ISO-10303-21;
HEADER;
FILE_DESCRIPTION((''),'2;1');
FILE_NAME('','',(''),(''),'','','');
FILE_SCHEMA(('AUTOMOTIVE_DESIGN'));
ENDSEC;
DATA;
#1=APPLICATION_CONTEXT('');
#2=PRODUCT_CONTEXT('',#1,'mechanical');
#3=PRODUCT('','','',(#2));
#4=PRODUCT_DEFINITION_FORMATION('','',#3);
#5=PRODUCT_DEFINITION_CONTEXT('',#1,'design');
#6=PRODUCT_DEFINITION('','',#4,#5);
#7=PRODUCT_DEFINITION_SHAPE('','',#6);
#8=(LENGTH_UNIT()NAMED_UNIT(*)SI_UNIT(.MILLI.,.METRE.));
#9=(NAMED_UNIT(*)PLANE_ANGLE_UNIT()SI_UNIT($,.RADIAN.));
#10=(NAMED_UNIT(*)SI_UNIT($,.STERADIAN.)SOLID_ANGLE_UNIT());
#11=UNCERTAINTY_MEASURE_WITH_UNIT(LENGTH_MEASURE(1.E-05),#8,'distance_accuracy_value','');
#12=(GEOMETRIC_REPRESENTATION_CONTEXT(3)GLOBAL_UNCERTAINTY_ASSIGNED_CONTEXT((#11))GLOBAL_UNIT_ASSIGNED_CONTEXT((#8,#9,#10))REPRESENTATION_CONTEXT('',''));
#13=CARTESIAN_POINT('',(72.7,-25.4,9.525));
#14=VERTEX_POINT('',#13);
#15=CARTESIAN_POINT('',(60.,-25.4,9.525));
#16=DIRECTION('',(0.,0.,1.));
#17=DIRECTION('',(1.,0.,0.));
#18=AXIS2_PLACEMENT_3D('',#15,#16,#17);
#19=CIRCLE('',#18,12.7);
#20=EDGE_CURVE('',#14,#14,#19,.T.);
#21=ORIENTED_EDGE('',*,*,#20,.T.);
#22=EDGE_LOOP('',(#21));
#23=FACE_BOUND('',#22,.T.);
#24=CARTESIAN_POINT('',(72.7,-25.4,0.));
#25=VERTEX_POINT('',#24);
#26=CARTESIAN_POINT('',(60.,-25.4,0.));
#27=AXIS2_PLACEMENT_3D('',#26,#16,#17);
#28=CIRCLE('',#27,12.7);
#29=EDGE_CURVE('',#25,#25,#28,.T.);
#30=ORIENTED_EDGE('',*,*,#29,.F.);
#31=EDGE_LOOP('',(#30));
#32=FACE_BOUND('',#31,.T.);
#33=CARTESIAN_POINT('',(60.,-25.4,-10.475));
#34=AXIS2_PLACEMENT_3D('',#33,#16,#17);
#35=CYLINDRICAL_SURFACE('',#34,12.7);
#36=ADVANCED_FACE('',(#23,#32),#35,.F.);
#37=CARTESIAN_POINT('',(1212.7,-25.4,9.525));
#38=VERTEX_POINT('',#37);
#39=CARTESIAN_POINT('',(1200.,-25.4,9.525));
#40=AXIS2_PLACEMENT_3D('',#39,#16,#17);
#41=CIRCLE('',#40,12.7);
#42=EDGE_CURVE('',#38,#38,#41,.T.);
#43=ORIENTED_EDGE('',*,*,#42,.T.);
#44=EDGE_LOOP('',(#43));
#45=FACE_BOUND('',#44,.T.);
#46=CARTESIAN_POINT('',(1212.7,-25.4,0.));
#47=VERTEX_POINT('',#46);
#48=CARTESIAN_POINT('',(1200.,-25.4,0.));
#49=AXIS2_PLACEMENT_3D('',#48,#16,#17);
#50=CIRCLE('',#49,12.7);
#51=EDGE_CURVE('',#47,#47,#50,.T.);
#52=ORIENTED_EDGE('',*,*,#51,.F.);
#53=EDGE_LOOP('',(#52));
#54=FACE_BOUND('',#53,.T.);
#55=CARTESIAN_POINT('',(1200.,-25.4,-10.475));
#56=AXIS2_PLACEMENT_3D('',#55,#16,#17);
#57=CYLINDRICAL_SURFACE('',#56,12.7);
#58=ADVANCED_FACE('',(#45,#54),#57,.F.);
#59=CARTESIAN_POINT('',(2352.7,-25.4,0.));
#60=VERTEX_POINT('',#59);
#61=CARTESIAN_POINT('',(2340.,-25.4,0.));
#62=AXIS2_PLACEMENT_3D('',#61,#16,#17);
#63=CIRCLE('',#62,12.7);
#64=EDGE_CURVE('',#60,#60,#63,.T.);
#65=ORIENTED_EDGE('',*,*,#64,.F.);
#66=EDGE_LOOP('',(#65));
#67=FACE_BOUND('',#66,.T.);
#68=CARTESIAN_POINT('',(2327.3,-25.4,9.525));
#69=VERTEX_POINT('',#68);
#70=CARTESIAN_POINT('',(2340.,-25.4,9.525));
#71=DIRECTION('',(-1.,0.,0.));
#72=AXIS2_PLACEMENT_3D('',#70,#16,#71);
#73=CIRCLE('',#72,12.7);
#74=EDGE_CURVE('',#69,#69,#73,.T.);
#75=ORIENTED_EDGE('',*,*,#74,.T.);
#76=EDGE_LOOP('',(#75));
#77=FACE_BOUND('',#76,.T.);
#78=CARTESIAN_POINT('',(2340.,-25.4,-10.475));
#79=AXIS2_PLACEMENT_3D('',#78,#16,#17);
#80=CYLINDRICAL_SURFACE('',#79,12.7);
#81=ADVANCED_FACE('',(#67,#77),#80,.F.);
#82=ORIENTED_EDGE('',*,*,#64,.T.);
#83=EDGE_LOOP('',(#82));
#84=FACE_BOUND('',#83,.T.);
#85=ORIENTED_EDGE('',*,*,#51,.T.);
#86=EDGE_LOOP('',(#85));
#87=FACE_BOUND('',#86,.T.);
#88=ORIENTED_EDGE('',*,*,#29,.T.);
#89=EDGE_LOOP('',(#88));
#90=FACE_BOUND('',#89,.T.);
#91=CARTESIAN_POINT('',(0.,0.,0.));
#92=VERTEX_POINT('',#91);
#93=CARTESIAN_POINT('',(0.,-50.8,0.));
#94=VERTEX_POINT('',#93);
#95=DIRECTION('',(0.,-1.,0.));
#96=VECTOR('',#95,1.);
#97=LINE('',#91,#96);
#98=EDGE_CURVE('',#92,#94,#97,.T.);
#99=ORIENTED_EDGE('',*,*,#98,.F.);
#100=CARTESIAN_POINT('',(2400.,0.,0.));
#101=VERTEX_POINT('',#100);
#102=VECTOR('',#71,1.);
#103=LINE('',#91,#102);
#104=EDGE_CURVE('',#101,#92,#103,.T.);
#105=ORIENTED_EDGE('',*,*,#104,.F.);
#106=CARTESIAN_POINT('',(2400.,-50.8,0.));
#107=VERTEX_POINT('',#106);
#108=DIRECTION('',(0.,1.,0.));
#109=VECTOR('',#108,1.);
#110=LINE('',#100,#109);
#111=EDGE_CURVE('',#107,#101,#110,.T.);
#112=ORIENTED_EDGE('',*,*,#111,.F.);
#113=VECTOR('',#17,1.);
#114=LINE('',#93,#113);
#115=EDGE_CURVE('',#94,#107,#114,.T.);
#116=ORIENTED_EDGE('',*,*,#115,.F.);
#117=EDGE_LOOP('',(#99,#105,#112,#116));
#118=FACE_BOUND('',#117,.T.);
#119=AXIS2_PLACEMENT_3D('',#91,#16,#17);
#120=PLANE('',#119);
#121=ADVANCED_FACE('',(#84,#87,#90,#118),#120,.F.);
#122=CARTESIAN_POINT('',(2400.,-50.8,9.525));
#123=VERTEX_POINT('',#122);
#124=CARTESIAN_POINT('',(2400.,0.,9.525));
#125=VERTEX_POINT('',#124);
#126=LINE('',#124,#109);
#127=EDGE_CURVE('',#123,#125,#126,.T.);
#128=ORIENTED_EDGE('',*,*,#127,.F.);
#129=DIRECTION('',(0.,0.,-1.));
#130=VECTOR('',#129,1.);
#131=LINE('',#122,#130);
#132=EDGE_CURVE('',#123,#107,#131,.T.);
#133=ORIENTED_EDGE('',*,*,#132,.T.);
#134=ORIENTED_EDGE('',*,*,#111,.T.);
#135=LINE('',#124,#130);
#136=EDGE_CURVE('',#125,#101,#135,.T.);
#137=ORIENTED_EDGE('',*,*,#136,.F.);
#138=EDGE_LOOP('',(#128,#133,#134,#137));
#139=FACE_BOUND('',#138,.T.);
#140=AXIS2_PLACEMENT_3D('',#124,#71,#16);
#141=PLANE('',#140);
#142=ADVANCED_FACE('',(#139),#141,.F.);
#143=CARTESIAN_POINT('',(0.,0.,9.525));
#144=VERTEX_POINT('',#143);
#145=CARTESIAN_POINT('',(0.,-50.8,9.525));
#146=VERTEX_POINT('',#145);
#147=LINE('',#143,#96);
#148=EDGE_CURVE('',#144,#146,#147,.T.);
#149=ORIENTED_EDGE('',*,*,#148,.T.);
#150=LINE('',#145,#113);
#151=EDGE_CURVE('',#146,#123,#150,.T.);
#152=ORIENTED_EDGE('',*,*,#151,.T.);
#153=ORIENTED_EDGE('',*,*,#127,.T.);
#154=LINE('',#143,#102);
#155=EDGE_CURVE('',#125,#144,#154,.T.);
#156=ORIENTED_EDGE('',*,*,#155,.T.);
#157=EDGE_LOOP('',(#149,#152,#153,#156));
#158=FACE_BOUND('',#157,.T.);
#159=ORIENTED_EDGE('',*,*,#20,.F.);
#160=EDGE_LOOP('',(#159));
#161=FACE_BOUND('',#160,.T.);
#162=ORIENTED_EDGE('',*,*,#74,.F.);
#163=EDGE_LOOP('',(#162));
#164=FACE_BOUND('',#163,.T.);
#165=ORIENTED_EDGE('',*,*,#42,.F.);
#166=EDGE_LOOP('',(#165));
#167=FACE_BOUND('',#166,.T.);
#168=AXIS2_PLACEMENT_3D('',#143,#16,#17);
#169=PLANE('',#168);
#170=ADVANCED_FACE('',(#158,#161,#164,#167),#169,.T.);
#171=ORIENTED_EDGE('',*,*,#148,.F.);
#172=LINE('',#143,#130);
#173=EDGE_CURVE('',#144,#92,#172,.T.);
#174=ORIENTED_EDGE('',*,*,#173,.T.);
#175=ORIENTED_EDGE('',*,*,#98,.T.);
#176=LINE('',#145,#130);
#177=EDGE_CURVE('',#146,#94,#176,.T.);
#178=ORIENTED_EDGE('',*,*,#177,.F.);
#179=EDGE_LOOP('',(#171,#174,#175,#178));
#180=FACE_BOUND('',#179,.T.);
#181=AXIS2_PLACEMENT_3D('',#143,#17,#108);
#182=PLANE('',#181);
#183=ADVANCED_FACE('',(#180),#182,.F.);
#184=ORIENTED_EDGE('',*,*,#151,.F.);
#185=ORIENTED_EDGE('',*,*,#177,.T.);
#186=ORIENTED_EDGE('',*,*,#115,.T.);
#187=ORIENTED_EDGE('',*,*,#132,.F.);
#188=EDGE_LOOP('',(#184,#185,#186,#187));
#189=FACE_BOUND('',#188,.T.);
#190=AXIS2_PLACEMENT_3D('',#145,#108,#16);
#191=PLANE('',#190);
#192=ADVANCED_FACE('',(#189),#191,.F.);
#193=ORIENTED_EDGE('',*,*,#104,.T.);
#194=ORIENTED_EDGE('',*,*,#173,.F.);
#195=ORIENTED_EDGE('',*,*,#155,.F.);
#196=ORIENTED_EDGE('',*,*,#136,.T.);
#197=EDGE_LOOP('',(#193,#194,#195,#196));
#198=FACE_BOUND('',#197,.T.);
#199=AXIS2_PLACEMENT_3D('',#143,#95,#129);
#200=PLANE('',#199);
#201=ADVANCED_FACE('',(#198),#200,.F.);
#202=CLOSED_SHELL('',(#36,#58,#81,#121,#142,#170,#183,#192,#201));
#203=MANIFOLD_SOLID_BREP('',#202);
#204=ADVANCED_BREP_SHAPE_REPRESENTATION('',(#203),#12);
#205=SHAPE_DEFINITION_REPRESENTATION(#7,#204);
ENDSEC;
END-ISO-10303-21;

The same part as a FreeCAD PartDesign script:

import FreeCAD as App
import Part
import Sketcher

V = App.Vector
Q = App.Units.Quantity

doc = App.newDocument("Part")
body = doc.addObject("PartDesign::Body", "Body")

sketch1 = body.newObject("Sketcher::SketchObject", "Sketch")
sketch1.AttachmentSupport = (doc.getObject("XY_Plane"), [""])
sketch1.MapMode = "FlatFace"
sketch1.addGeometry([
    Part.LineSegment(V(0, 0, 0), V(0, -51, 0)),
    Part.LineSegment(V(0, -51, 0), V(2400, -51, 0)),
    Part.LineSegment(V(2400, -51, 0), V(2400, 0, 0)),
    Part.LineSegment(V(2400, 0, 0), V(0, 0, 0)),
], False)
sketch1.addConstraint([
    Sketcher.Constraint("Coincident", 0, 2, 1, 1),
    Sketcher.Constraint("Coincident", 1, 2, 2, 1),
    Sketcher.Constraint("Coincident", 2, 2, 3, 1),
    Sketcher.Constraint("Coincident", 3, 2, 0, 1),
    Sketcher.Constraint("Vertical", 0),
    Sketcher.Constraint("Horizontal", 1),
    Sketcher.Constraint("Vertical", 2),
    Sketcher.Constraint("Horizontal", 3),
    Sketcher.Constraint("Coincident", 3, 2, -1, 1),
    Sketcher.Constraint("DistanceY", 0, 2, 0, 1, Q("2 in")),
    Sketcher.Constraint("DistanceX", 1, 1, 1, 2, 2400.0),
])
pad1 = body.newObject("PartDesign::Pad", "Pad")
pad1.Profile = sketch1
pad1.Length = Q("0.375 in")

sketch2 = body.newObject("Sketcher::SketchObject", "Sketch001")
sketch2.AttachmentSupport = (doc.getObject("XY_Plane"), [""])
sketch2.MapMode = "FlatFace"
sketch2.AttachmentOffset = App.Placement(V(0, 0, 0.375 * 25.4), App.Rotation())
sketch2.addGeometry([
    Part.Circle(V(60, -25, 0), V(0, 0, 1), 13),
    Part.Circle(V(2340, -25, 0), V(0, 0, 1), 13),
    Part.Circle(V(1200, -25, 0), V(0, 0, 1), 13),
], False)
sketch2.addConstraint([
    Sketcher.Constraint("Equal", 0, 1),
    Sketcher.Constraint("Equal", 1, 2),
    Sketcher.Constraint("Horizontal", 0, 3, 1, 3),
    Sketcher.Constraint("Horizontal", 1, 3, 2, 3),
    Sketcher.Constraint("Diameter", 0, Q("1 in")),
    Sketcher.Constraint("DistanceY", 0, 3, -1, 1, Q("1 in")),
    Sketcher.Constraint("DistanceX", -1, 1, 0, 3, 60.0),
    Sketcher.Constraint("DistanceX", -1, 1, 1, 3, 2340.0),
    Sketcher.Constraint("DistanceX", -1, 1, 2, 3, 1200.0),
])
pocket1 = body.newObject("PartDesign::Pocket", "Pocket")
pocket1.Profile = sketch2
pocket1.Length = 20

doc.recompute()
